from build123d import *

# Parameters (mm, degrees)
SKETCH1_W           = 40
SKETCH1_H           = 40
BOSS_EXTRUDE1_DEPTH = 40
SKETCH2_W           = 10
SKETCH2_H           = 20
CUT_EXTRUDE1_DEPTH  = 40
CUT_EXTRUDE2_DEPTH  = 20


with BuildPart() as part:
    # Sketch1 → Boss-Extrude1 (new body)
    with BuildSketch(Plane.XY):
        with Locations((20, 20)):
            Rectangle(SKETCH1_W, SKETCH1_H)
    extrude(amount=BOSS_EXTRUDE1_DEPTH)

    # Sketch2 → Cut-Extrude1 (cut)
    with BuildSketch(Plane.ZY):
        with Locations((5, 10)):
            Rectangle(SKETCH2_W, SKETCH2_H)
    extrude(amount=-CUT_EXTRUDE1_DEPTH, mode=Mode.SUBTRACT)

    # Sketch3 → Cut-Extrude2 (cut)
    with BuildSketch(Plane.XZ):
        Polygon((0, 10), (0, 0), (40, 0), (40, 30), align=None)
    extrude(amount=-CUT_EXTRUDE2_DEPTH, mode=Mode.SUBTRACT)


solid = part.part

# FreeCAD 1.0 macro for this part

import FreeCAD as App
import Part
import Sketcher

V = App.Vector
Q = App.Units.Quantity

doc = App.newDocument("Part")
body = doc.addObject("PartDesign::Body", "Body")

sketch1 = body.newObject("Sketcher::SketchObject", "Sketch")
sketch1.AttachmentSupport = (doc.getObject("XY_Plane"), [""])
sketch1.MapMode = "FlatFace"
sketch1.addGeometry([
    Part.LineSegment(V(0, 40, 0), V(0, 0, 0)),
    Part.LineSegment(V(0, 0, 0), V(40, 0, 0)),
    Part.LineSegment(V(40, 0, 0), V(40, 40, 0)),
    Part.LineSegment(V(40, 40, 0), V(0, 40, 0)),
], False)
sketch1.addConstraint([
    Sketcher.Constraint("Coincident", 0, 2, 1, 1),
    Sketcher.Constraint("Coincident", 1, 2, 2, 1),
    Sketcher.Constraint("Coincident", 2, 2, 3, 1),
    Sketcher.Constraint("Coincident", 3, 2, 0, 1),
    Sketcher.Constraint("Vertical", 0),
    Sketcher.Constraint("Horizontal", 1),
    Sketcher.Constraint("Vertical", 2),
    Sketcher.Constraint("Horizontal", 3),
    Sketcher.Constraint("Coincident", 0, 2, -1, 1),
    Sketcher.Constraint("Equal", 3, 0),
    Sketcher.Constraint("DistanceX", 1, 1, 1, 2, Q("40 mm")),
])
pad1 = body.newObject("PartDesign::Pad", "Pad")
pad1.Profile = sketch1
pad1.Length = 40

sketch2 = body.newObject("Sketcher::SketchObject", "Sketch001")
sketch2.AttachmentSupport = (doc.getObject("YZ_Plane"), [""])
sketch2.MapMode = "FlatFace"
sketch2.addGeometry([
    Part.LineSegment(V(20, 0, 0), V(0, 0, 0)),
    Part.LineSegment(V(0, 0, 0), V(0, 10, 0)),
    Part.LineSegment(V(0, 10, 0), V(20, 10, 0)),
    Part.LineSegment(V(20, 10, 0), V(20, 0, 0)),
], False)
sketch2.addConstraint([
    Sketcher.Constraint("Coincident", 0, 2, 1, 1),
    Sketcher.Constraint("Coincident", 1, 2, 2, 1),
    Sketcher.Constraint("Coincident", 2, 2, 3, 1),
    Sketcher.Constraint("Coincident", 3, 2, 0, 1),
    Sketcher.Constraint("Horizontal", 0),
    Sketcher.Constraint("Vertical", 1),
    Sketcher.Constraint("Horizontal", 2),
    Sketcher.Constraint("Vertical", 3),
    Sketcher.Constraint("Coincident", 0, 2, -1, 1),
    Sketcher.Constraint("DistanceX", 0, 2, 0, 1, Q("20 mm")),
    Sketcher.Constraint("DistanceY", 1, 1, 1, 2, Q("10 mm")),
])
pocket1 = body.newObject("PartDesign::Pocket", "Pocket")
pocket1.Profile = sketch2
pocket1.Length = 40
pocket1.Reversed = True

sketch3 = body.newObject("Sketcher::SketchObject", "Sketch002")
sketch3.AttachmentSupport = (doc.getObject("XZ_Plane"), [""])
sketch3.MapMode = "FlatFace"
sketch3.addGeometry([
    Part.LineSegment(V(0, 10, 0), V(0, 0, 0)),
    Part.LineSegment(V(0, 0, 0), V(40, 0, 0)),
    Part.LineSegment(V(40, 0, 0), V(40, 30, 0)),
    Part.LineSegment(V(40, 30, 0), V(0, 10, 0)),
], False)
sketch3.addConstraint([
    Sketcher.Constraint("Coincident", 0, 2, 1, 1),
    Sketcher.Constraint("Coincident", 1, 2, 2, 1),
    Sketcher.Constraint("Coincident", 2, 2, 3, 1),
    Sketcher.Constraint("Coincident", 3, 2, 0, 1),
    Sketcher.Constraint("Vertical", 0),
    Sketcher.Constraint("Horizontal", 1),
    Sketcher.Constraint("Vertical", 2),
    Sketcher.Constraint("Coincident", 0, 2, -1, 1),
    Sketcher.Constraint("DistanceX", 1, 1, 1, 2, Q("40 mm")),
    Sketcher.Constraint("DistanceY", 0, 2, 0, 1, Q("10 mm")),
    Sketcher.Constraint("DistanceY", 2, 1, 2, 2, Q("30 mm")),
])
pocket2 = body.newObject("PartDesign::Pocket", "Pocket001")
pocket2.Profile = sketch3
pocket2.Length = 20

doc.recompute()
